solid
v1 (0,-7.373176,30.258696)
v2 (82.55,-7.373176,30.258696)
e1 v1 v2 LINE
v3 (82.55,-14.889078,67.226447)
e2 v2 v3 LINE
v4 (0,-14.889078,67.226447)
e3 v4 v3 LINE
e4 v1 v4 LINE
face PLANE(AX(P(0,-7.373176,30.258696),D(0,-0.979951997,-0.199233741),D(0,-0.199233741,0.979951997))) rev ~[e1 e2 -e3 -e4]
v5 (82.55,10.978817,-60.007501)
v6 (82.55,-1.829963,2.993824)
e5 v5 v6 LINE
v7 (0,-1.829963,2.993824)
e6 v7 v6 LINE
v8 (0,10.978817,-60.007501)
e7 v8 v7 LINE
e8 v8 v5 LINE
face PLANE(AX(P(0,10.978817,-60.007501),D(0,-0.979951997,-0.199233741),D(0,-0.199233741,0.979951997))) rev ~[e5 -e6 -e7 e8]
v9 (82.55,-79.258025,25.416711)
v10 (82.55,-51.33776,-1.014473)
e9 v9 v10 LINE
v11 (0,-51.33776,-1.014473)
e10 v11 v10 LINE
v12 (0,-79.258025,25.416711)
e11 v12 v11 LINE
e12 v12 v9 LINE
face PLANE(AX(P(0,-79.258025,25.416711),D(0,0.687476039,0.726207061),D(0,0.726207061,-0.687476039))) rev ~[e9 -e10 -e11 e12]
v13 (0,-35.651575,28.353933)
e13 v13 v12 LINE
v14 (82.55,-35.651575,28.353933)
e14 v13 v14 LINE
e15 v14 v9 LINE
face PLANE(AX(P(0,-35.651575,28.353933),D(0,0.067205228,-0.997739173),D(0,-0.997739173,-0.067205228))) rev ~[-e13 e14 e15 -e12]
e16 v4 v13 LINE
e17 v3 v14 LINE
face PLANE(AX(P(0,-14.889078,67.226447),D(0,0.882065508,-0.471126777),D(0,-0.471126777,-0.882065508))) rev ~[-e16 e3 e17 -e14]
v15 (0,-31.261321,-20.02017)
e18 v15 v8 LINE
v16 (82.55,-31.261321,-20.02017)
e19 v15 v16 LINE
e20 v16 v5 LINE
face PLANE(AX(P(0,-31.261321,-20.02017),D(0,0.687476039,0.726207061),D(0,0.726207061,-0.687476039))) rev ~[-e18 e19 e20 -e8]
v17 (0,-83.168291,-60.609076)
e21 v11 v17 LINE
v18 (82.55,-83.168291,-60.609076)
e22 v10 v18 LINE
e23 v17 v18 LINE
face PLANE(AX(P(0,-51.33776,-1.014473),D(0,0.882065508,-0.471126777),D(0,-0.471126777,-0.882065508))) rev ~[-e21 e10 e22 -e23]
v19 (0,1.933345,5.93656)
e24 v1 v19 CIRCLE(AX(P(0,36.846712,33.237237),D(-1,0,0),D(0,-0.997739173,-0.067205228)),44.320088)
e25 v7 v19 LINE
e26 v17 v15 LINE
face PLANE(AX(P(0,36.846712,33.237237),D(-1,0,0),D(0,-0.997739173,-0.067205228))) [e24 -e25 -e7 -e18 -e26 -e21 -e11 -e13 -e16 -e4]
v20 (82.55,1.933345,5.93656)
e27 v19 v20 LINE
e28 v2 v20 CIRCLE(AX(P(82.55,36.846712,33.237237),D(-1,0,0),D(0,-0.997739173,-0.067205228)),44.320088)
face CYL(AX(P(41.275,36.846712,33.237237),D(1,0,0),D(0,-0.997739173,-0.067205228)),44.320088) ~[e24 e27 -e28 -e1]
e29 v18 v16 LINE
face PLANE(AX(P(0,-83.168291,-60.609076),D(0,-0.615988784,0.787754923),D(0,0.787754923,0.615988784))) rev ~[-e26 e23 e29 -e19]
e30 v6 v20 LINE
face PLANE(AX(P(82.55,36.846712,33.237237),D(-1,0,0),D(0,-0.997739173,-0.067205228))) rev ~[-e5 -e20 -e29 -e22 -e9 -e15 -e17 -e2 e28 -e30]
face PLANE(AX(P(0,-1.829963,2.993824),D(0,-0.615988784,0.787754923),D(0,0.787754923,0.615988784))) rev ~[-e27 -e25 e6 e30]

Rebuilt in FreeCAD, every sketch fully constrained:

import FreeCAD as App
import Part
import Sketcher
Q = App.Units.Quantity


def add_polygon(sketch, points):
    """Adds a closed chain of lines whose ends are joined by coincident constraints."""
    first, n = sketch.GeometryCount, len(points)
    for a, b in zip(points, points[1:] + points[:1]):
        sketch.addGeometry(Part.LineSegment(App.Vector(*a, 0), App.Vector(*b, 0)), False)
    for i in range(n):
        sketch.addConstraint(Sketcher.Constraint("Coincident", first + i, 2, first + (i + 1) % n, 1))

doc = App.newDocument("Part")
body = doc.addObject("PartDesign::Body", "Body")

# Sketch on YZ plane
sketch1 = doc.addObject("Sketcher::SketchObject", "Sketch")
body.addObject(sketch1)
sketch1.AttachmentSupport = (doc.YZ_Plane, [""])
sketch1.MapMode = "FlatFace"
add_polygon(sketch1, [(11, -60), (-2, 3), (37, 33), (-7, 30), (-15, 67), (-36, 28), (-79, 25), (-51, -1), (-83, -61), (-31, -20)])  # lines 0-9
sketch1.addConstraint(Sketcher.Constraint("Parallel", 0, 3))
sketch1.addConstraint(Sketcher.Constraint("Parallel", 2, 5))
sketch1.addConstraint(Sketcher.Constraint("Parallel", 4, 7))
sketch1.addConstraint(Sketcher.Constraint("Parallel", 1, 8))
sketch1.addConstraint(Sketcher.Constraint("Parallel", 6, 9))
sketch1.addConstraint(Sketcher.Constraint("DistanceY", 9, 2, -1, 1, Q("2.3625001 in")))
sketch1.addConstraint(Sketcher.Constraint("Distance", 6, Q("38.4467 mm")))
sketch1.addConstraint(Sketcher.Constraint("DistanceX", 4, 2, 2, 2, Q("28.278399 mm")))
sketch1.addConstraint(Sketcher.Constraint("DistanceY", 7, 2, 0, 2, Q("63.6029 mm")))
sketch1.addConstraint(Sketcher.Constraint("Distance", 2, Q("44.320088 mm")))
sketch1.addConstraint(Sketcher.Constraint("Distance", 4, Q("44.069872 mm")))
sketch1.addConstraint(Sketcher.Constraint("Distance", 5, Q("43.70526 mm")))
sketch1.addConstraint(Sketcher.Constraint("Distance", 7, Q("67.562559 mm")))
sketch1.addConstraint(Sketcher.Constraint("Distance", 9, Q("58.165419 mm")))
sketch1.addConstraint(Sketcher.Constraint("DistanceX", 3, 2, -1, 1, Q("14.889078 mm")))
sketch1.addConstraint(Sketcher.Constraint("DistanceY", -1, 1, 5, 2, Q("25.416711 mm")))
sketch1.addConstraint(Sketcher.Constraint("DistanceX", 6, 2, -1, 1, Q("51.33776 mm")))
sketch1.addConstraint(Sketcher.Constraint("DistanceX", 7, 2, -1, 1, Q("83.168291 mm")))
sketch1.addConstraint(Sketcher.Constraint("DistanceX", 8, 2, -1, 1, Q("31.261321 mm")))
sketch1.addConstraint(Sketcher.Constraint("DistanceY", 8, 2, -1, 1, Q("20.02017 mm")))
pad1 = doc.addObject("PartDesign::Pad", "Pad")
body.addObject(pad1)
pad1.Profile = sketch1
pad1.Length = Q("3.25 in")

# Sketch on an angled plane
sketch2 = doc.addObject("Sketcher::SketchObject", "Sketch001")
body.addObject(sketch2)
sketch2.Placement = App.Placement(App.Vector(41.275, 14.736768, 31.747967), App.Rotation(App.Vector(1, 0, 0), App.Vector(0, 0.997739173, 0.067205228), App.Vector(0, -0.067205228, 0.997739173), "ZXY"))
add_polygon(sketch2, [(-41, 22), (-41, -22), (41, -22), (41, 22)])  # lines 0-3
sketch2.addGeometry(Part.LineSegment(App.Vector(41, 22, 0), App.Vector(-41, 22, 0)), True)  # axis
sketch2.addConstraint(Sketcher.Constraint("Vertical", 0))
sketch2.addConstraint(Sketcher.Constraint("Horizontal", 1))
sketch2.addConstraint(Sketcher.Constraint("Vertical", 2))
sketch2.addConstraint(Sketcher.Constraint("Horizontal", 3))
sketch2.addConstraint(Sketcher.Constraint("Horizontal", 4))
sketch2.addConstraint(Sketcher.Constraint("Coincident", 4, 1, 2, 2))
sketch2.addConstraint(Sketcher.Constraint("Symmetric", 0, 2, 2, 2, -1, 1))
sketch2.addConstraint(Sketcher.Constraint("Vertical", 0, 2, 4, 2))
sketch2.addConstraint(Sketcher.Constraint("DistanceX", 1, 1, 1, 2, Q("3.25 in")))
sketch2.addConstraint(Sketcher.Constraint("DistanceY", 0, 2, 0, 1, Q("44.320088 mm")))
revolution = doc.addObject("PartDesign::Revolution", "Revolution")
body.addObject(revolution)
revolution.Profile = sketch2
revolution.ReferenceAxis = (sketch2, ["Axis0"])
revolution.Angle = 360

doc.recompute()
